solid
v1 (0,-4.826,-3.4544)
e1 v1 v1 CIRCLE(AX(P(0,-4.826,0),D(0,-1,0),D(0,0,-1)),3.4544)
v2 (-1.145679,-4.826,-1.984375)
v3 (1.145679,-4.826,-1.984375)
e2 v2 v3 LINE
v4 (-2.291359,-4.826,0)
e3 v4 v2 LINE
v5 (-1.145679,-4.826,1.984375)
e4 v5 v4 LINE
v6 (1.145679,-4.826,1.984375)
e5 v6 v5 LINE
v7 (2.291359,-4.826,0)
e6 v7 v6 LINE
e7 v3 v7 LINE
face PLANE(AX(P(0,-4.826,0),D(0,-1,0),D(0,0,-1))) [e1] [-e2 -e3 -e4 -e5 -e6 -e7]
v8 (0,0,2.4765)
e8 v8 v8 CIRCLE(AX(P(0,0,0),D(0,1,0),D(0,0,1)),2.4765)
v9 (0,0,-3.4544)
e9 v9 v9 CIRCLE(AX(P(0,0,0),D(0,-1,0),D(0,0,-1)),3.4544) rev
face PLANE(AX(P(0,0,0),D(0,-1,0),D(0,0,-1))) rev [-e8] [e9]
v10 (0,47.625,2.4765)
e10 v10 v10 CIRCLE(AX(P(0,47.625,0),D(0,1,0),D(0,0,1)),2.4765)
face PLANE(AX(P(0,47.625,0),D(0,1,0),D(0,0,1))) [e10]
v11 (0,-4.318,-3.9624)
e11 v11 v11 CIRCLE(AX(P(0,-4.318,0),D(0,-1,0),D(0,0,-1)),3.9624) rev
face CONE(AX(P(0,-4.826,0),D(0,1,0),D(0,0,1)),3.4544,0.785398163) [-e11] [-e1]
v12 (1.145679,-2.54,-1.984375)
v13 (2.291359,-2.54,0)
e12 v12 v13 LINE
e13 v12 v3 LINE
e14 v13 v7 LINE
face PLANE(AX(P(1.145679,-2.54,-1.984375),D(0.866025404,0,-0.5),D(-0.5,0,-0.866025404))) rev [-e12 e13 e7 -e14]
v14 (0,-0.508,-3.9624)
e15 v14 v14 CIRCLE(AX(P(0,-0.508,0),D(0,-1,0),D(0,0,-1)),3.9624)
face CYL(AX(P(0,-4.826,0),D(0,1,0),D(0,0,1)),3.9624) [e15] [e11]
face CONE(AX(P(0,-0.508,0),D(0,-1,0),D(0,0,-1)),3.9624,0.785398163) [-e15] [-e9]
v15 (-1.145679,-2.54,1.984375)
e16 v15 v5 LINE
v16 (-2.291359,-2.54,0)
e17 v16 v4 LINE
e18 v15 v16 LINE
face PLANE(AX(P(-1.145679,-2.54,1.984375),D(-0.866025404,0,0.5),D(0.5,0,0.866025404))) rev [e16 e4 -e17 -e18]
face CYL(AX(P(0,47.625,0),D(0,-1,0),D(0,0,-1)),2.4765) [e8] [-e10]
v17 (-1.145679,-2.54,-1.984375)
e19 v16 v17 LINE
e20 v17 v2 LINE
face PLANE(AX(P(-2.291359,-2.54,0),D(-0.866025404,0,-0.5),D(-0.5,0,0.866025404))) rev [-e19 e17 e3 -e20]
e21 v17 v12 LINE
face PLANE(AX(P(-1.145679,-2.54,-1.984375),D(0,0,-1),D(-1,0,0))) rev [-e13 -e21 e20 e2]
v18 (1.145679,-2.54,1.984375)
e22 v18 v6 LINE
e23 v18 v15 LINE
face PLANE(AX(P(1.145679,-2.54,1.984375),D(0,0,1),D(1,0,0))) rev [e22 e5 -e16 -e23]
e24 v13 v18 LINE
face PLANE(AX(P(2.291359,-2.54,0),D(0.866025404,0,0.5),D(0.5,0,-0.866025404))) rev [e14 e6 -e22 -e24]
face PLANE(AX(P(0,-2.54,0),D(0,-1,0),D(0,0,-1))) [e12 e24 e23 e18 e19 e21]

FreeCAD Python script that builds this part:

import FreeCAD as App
import Part
import Sketcher
from FreeCAD import Vector
Q = App.Units.Quantity


def edges_at(feature, points):
    """Names of the edges that pass closest to the given points."""
    edges = feature.Shape.Edges
    near = lambda p: min(range(len(edges)), key=lambda i: edges[i].distToShape(Part.Vertex(*p))[0])
    return sorted({f"Edge{near(p) + 1}" for p in points})


def add_polygon(sketch, points):
    """Adds a closed chain of lines whose ends are joined by coincident constraints."""
    first, n = sketch.GeometryCount, len(points)
    for a, b in zip(points, points[1:] + points[:1]):
        sketch.addGeometry(Part.LineSegment(App.Vector(*a, 0), App.Vector(*b, 0)), False)
    for i in range(n):
        sketch.addConstraint(Sketcher.Constraint("Coincident", first + i, 2, first + (i + 1) % n, 1))

doc = App.newDocument("Part")
params = doc.addObject("Spreadsheet::Sheet", "Params")
for row, (alias, value) in enumerate([
    ("sketch1_diameter", "0.195 in"),
    ("pad1_length", "1.875 in"),
    ("sketch2_diameter", "0.312 in"),
    ("pad2_length", "0.19 in"),
    ("pocket1_length", "0.09 in"),
    ("chamfer_size", "0.02 in"),
], start=1):
    params.set(f"A{row}", alias)
    params.set(f"B{row}", "=" + value)
    params.setAlias(f"B{row}", alias)

body = doc.addObject("PartDesign::Body", "Body")

# Sketch on XZ plane
sketch1 = body.newObject("Sketcher::SketchObject", "Sketch")
sketch1.AttachmentSupport = (doc.getObject("XZ_Plane"), [""])
sketch1.MapMode = "FlatFace"
sketch1.addGeometry(Part.Circle(Vector(0, 0, 0), Vector(0, 0, 1), 2.4765), False)
sketch1.addConstraint([
    Sketcher.Constraint("Coincident", 0, 3, -1, 1),
    Sketcher.Constraint("Diameter", 0, Q("0.195 in")),
])
sketch1.setExpression("Constraints[1]", "Params.sketch1_diameter")
pad1 = body.newObject("PartDesign::Pad", "Pad")
pad1.Profile = sketch1
pad1.setExpression("Length", "Params.pad1_length")
pad1.Reversed = True

# Sketch on XZ plane
sketch2 = body.newObject("Sketcher::SketchObject", "Sketch001")
sketch2.AttachmentSupport = (doc.getObject("XZ_Plane"), [""])
sketch2.MapMode = "FlatFace"
sketch2.addGeometry(Part.Circle(Vector(0, 0, 0), Vector(0, 0, 1), 3.9624), False)
sketch2.addConstraint([
    Sketcher.Constraint("Coincident", 0, 3, -1, 1),
    Sketcher.Constraint("Diameter", 0, Q("0.312 in")),
])
sketch2.setExpression("Constraints[1]", "Params.sketch2_diameter")
pad2 = body.newObject("PartDesign::Pad", "Pad001")
pad2.Profile = sketch2
pad2.setExpression("Length", "Params.pad2_length")

# Sketch on XZ plane
sketch3 = body.newObject("Sketcher::SketchObject", "Sketch002")
sketch3.AttachmentSupport = (doc.getObject("XZ_Plane"), [""])
sketch3.MapMode = "FlatFace"
sketch3.AttachmentOffset = App.Placement(Vector(0, 0, 0.19 * 25.4), App.Rotation())
add_polygon(sketch3, [(2.291359, 0), (1.145679, 1.984375), (-1.145679, 1.984375), (-2.291359, 0), (-1.145679, -1.984375), (1.145679, -1.984375)])  # lines 0-5
sketch3.addConstraint([
    Sketcher.Constraint("Horizontal", 1),
    Sketcher.Constraint("Horizontal", 4),
    Sketcher.Constraint("Symmetric", 0, 2, 3, 2, -1, 1),
    Sketcher.Constraint("Symmetric", 2, 2, 5, 2, -1, 1),
    Sketcher.Constraint("PointOnObject", 2, 2, -1),
    Sketcher.Constraint("Parallel", 2, 5),
    Sketcher.Constraint("Vertical", 1, 2, 3, 2),
    Sketcher.Constraint("Angle", 0, Q("120 deg")),
    Sketcher.Constraint("DistanceY", -1, 1, 0, 2, Q("0.078125 in")),
    Sketcher.Constraint("DistanceX", 1, 2, 1, 1, Q("2.291359 mm")),
])
pocket1 = body.newObject("PartDesign::Pocket", "Pocket")
pocket1.Profile = sketch3
pocket1.setExpression("Length", "Params.pocket1_length")
doc.recompute()

chamfer = body.newObject("PartDesign::Chamfer", "Chamfer")
chamfer.Base = (pocket1, edges_at(pocket1, [(0, 0, 3.962), (0, -4.826, 3.962)]))
chamfer.setExpression("Size", "Params.chamfer_size")

doc.recompute()
